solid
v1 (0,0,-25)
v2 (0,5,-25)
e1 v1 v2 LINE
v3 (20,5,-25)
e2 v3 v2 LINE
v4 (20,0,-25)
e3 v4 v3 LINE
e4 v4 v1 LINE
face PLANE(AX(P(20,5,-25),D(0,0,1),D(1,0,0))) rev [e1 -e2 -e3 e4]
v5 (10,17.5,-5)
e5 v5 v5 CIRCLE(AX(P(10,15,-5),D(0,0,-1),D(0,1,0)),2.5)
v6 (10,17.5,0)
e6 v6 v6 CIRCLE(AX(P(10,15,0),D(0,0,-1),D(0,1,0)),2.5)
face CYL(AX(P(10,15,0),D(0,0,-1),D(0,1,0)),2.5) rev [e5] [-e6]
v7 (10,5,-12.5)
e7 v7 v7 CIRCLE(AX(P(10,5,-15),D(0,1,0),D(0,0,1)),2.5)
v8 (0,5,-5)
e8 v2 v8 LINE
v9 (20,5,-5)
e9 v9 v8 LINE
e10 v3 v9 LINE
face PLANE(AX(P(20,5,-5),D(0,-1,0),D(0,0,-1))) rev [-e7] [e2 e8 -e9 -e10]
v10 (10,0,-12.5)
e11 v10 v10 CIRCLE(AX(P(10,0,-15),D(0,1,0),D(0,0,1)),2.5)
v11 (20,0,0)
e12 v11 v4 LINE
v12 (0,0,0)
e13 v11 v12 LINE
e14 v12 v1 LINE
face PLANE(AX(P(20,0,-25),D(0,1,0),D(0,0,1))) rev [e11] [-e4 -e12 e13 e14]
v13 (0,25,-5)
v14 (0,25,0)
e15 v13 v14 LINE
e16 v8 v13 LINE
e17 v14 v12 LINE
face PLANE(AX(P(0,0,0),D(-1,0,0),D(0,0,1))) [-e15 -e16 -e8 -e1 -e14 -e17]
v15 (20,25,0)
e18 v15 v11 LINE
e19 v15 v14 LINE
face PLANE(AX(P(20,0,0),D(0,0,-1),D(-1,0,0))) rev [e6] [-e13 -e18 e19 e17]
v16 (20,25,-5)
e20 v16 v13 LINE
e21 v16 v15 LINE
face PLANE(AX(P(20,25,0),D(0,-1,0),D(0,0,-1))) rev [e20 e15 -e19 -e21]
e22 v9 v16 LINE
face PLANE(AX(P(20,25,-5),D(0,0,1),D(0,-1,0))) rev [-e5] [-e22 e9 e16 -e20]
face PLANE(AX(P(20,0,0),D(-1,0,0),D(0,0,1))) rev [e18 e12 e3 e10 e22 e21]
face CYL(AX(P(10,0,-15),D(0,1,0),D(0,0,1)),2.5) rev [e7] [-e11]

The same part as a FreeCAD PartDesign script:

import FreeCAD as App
import Part
import Sketcher

V = App.Vector
Q = App.Units.Quantity

doc = App.newDocument("Part")
body = doc.addObject("PartDesign::Body", "Body")

# Sketch on YZ plane
sketch1 = doc.addObject("Sketcher::SketchObject", "Sketch")
body.addObject(sketch1)
sketch1.AttachmentSupport = (doc.YZ_Plane, [""])
sketch1.MapMode = "FlatFace"
sketch1.addGeometry([
    Part.LineSegment(V(25, 0, 0), V(0, 0, 0)),  # 0
    Part.LineSegment(V(0, 0, 0), V(0, -25, 0)),  # 1
    Part.LineSegment(V(0, -25, 0), V(5, -25, 0)),  # 2
    Part.LineSegment(V(5, -25, 0), V(5, -5, 0)),  # 3
    Part.LineSegment(V(5, -5, 0), V(25, -5, 0)),  # 4
    Part.LineSegment(V(25, -5, 0), V(25, 0, 0)),  # 5
], False)
sketch1.addConstraint([
    Sketcher.Constraint("Coincident", 0, 2, 1, 1),
    Sketcher.Constraint("Coincident", 1, 2, 2, 1),
    Sketcher.Constraint("Coincident", 2, 2, 3, 1),
    Sketcher.Constraint("Coincident", 3, 2, 4, 1),
    Sketcher.Constraint("Coincident", 4, 2, 5, 1),
    Sketcher.Constraint("Coincident", 5, 2, 0, 1),
    Sketcher.Constraint("Horizontal", 0),
    Sketcher.Constraint("Vertical", 1),
    Sketcher.Constraint("Horizontal", 2),
    Sketcher.Constraint("Vertical", 3),
    Sketcher.Constraint("Horizontal", 4),
    Sketcher.Constraint("Vertical", 5),
    Sketcher.Constraint("Coincident", 0, 2, -1, 1),
    Sketcher.Constraint("Equal", 0, 1),
    Sketcher.Constraint("Equal", 4, 3),
    Sketcher.Constraint("DistanceX", 0, 2, 0, 1, Q("25 mm")),
    Sketcher.Constraint("DistanceX", 2, 1, 2, 2, Q("5 mm")),
])
pad1 = doc.addObject("PartDesign::Pad", "Pad")
body.addObject(pad1)
pad1.Profile = sketch1
pad1.Length = 20

# Sketch on XZ plane
sketch2 = doc.addObject("Sketcher::SketchObject", "Sketch001")
body.addObject(sketch2)
sketch2.AttachmentSupport = (doc.XZ_Plane, [""])
sketch2.MapMode = "FlatFace"
sketch2.AttachmentOffset = App.Placement(V(0, 0, -5), App.Rotation())
sketch2.addGeometry(Part.Circle(V(10, -15, 0), V(0, 0, 1), 2.5), False)
sketch2.addConstraint([
    Sketcher.Constraint("Diameter", 0, Q("5 mm")),
    Sketcher.Constraint("DistanceX", -1, 1, 0, 3, Q("10 mm")),
    Sketcher.Constraint("DistanceY", 0, 3, -1, 1, Q("15 mm")),
])
pocket1 = doc.addObject("PartDesign::Pocket", "Pocket")
body.addObject(pocket1)
pocket1.Profile = sketch2
pocket1.Type = "ThroughAll"
pocket1.Reversed = True

# Sketch on XY plane
sketch3 = doc.addObject("Sketcher::SketchObject", "Sketch002")
body.addObject(sketch3)
sketch3.AttachmentSupport = (doc.XY_Plane, [""])
sketch3.MapMode = "FlatFace"
sketch3.AttachmentOffset = App.Placement(V(0, 0, -5), App.Rotation())
sketch3.addGeometry(Part.Circle(V(10, 15, 0), V(0, 0, 1), 2.5), False)
sketch3.addConstraint([
    Sketcher.Constraint("Diameter", 0, Q("5 mm")),
    Sketcher.Constraint("DistanceX", -1, 1, 0, 3, Q("10 mm")),
    Sketcher.Constraint("DistanceY", -1, 1, 0, 3, Q("15 mm")),
])
pocket2 = doc.addObject("PartDesign::Pocket", "Pocket001")
body.addObject(pocket2)
pocket2.Profile = sketch3
pocket2.Type = "ThroughAll"
pocket2.Reversed = True

doc.recompute()
